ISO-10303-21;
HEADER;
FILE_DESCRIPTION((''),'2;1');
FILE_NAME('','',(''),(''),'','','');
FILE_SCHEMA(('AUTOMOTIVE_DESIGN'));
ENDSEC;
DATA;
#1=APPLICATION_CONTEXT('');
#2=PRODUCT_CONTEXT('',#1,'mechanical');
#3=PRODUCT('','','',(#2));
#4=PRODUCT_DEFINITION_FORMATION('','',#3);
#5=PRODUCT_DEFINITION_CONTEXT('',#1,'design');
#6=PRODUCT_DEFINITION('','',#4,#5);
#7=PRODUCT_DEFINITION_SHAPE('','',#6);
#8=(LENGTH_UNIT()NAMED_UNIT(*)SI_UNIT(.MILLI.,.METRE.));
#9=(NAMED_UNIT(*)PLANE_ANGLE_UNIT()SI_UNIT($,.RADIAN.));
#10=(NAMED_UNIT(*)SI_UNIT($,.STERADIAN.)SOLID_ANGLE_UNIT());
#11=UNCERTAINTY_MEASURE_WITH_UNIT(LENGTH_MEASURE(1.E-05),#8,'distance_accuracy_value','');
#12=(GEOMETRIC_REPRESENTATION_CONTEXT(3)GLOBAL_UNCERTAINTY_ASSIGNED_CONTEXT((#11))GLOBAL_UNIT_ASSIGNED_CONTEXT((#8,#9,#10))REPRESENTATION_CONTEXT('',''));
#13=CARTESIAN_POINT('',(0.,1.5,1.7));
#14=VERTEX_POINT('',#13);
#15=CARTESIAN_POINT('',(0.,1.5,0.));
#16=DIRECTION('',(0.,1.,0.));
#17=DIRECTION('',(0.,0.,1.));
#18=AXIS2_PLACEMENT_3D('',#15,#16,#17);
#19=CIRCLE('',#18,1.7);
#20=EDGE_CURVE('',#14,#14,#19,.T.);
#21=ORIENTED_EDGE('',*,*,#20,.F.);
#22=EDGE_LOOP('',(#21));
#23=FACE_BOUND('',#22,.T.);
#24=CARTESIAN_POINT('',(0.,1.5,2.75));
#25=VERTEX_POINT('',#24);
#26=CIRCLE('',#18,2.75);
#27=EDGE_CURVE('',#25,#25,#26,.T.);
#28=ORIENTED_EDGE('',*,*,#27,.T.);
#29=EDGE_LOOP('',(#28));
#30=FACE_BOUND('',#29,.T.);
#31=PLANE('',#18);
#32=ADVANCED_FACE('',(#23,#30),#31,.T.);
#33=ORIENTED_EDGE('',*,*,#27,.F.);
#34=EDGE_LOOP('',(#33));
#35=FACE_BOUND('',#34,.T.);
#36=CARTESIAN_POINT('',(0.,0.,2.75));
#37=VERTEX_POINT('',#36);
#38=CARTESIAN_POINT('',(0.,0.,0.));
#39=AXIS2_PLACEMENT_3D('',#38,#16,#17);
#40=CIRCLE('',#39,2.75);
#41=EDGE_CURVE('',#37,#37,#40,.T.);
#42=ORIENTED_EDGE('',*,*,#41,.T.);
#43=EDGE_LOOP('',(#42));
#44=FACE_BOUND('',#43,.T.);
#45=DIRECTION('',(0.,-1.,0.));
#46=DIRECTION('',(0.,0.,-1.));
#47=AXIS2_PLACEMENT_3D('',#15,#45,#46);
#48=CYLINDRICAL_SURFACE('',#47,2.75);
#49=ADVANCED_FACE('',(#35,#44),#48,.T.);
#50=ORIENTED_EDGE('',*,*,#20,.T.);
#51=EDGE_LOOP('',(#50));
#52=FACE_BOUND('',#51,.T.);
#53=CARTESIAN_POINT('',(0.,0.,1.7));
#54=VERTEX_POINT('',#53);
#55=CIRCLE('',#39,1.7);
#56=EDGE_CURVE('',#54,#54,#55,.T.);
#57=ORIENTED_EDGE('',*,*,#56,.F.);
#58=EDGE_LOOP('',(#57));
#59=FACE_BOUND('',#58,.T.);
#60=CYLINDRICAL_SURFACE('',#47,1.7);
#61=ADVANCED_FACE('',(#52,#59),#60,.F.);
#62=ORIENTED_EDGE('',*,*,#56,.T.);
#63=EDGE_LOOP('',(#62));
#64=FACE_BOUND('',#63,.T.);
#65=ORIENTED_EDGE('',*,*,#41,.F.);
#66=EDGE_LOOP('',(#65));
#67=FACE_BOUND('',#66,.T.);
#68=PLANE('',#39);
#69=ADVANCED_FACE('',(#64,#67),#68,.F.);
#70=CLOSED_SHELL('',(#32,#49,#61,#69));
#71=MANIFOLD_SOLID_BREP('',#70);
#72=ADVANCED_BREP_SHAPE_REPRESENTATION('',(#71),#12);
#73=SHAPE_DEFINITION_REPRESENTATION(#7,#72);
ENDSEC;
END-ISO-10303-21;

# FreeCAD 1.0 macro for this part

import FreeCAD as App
import Part
import Sketcher

V = App.Vector
Q = App.Units.Quantity

doc = App.newDocument("Part")
body = doc.addObject("PartDesign::Body", "Body")

# Sketch on XZ plane
sketch1 = body.newObject("Sketcher::SketchObject", "Sketch")
sketch1.AttachmentSupport = (doc.getObject("XZ_Plane"), [""])
sketch1.MapMode = "FlatFace"
sketch1.addGeometry([
    Part.Circle(V(0, 0, 0), V(0, 0, 1), 2.8),
    Part.Circle(V(0, 0, 0), V(0, 0, 1), 1.7),
], False)
sketch1.addConstraint([
    Sketcher.Constraint("Coincident", 0, 3, -1, 1),
    Sketcher.Constraint("Coincident", 1, 3, -1, 1),
    Sketcher.Constraint("Diameter", 0, Q("5.5 mm")),
    Sketcher.Constraint("Diameter", 1, Q("3.4 mm")),
])
pad1 = body.newObject("PartDesign::Pad", "Pad")
pad1.Profile = sketch1
pad1.Length = 1.5
pad1.Reversed = True

doc.recompute()
